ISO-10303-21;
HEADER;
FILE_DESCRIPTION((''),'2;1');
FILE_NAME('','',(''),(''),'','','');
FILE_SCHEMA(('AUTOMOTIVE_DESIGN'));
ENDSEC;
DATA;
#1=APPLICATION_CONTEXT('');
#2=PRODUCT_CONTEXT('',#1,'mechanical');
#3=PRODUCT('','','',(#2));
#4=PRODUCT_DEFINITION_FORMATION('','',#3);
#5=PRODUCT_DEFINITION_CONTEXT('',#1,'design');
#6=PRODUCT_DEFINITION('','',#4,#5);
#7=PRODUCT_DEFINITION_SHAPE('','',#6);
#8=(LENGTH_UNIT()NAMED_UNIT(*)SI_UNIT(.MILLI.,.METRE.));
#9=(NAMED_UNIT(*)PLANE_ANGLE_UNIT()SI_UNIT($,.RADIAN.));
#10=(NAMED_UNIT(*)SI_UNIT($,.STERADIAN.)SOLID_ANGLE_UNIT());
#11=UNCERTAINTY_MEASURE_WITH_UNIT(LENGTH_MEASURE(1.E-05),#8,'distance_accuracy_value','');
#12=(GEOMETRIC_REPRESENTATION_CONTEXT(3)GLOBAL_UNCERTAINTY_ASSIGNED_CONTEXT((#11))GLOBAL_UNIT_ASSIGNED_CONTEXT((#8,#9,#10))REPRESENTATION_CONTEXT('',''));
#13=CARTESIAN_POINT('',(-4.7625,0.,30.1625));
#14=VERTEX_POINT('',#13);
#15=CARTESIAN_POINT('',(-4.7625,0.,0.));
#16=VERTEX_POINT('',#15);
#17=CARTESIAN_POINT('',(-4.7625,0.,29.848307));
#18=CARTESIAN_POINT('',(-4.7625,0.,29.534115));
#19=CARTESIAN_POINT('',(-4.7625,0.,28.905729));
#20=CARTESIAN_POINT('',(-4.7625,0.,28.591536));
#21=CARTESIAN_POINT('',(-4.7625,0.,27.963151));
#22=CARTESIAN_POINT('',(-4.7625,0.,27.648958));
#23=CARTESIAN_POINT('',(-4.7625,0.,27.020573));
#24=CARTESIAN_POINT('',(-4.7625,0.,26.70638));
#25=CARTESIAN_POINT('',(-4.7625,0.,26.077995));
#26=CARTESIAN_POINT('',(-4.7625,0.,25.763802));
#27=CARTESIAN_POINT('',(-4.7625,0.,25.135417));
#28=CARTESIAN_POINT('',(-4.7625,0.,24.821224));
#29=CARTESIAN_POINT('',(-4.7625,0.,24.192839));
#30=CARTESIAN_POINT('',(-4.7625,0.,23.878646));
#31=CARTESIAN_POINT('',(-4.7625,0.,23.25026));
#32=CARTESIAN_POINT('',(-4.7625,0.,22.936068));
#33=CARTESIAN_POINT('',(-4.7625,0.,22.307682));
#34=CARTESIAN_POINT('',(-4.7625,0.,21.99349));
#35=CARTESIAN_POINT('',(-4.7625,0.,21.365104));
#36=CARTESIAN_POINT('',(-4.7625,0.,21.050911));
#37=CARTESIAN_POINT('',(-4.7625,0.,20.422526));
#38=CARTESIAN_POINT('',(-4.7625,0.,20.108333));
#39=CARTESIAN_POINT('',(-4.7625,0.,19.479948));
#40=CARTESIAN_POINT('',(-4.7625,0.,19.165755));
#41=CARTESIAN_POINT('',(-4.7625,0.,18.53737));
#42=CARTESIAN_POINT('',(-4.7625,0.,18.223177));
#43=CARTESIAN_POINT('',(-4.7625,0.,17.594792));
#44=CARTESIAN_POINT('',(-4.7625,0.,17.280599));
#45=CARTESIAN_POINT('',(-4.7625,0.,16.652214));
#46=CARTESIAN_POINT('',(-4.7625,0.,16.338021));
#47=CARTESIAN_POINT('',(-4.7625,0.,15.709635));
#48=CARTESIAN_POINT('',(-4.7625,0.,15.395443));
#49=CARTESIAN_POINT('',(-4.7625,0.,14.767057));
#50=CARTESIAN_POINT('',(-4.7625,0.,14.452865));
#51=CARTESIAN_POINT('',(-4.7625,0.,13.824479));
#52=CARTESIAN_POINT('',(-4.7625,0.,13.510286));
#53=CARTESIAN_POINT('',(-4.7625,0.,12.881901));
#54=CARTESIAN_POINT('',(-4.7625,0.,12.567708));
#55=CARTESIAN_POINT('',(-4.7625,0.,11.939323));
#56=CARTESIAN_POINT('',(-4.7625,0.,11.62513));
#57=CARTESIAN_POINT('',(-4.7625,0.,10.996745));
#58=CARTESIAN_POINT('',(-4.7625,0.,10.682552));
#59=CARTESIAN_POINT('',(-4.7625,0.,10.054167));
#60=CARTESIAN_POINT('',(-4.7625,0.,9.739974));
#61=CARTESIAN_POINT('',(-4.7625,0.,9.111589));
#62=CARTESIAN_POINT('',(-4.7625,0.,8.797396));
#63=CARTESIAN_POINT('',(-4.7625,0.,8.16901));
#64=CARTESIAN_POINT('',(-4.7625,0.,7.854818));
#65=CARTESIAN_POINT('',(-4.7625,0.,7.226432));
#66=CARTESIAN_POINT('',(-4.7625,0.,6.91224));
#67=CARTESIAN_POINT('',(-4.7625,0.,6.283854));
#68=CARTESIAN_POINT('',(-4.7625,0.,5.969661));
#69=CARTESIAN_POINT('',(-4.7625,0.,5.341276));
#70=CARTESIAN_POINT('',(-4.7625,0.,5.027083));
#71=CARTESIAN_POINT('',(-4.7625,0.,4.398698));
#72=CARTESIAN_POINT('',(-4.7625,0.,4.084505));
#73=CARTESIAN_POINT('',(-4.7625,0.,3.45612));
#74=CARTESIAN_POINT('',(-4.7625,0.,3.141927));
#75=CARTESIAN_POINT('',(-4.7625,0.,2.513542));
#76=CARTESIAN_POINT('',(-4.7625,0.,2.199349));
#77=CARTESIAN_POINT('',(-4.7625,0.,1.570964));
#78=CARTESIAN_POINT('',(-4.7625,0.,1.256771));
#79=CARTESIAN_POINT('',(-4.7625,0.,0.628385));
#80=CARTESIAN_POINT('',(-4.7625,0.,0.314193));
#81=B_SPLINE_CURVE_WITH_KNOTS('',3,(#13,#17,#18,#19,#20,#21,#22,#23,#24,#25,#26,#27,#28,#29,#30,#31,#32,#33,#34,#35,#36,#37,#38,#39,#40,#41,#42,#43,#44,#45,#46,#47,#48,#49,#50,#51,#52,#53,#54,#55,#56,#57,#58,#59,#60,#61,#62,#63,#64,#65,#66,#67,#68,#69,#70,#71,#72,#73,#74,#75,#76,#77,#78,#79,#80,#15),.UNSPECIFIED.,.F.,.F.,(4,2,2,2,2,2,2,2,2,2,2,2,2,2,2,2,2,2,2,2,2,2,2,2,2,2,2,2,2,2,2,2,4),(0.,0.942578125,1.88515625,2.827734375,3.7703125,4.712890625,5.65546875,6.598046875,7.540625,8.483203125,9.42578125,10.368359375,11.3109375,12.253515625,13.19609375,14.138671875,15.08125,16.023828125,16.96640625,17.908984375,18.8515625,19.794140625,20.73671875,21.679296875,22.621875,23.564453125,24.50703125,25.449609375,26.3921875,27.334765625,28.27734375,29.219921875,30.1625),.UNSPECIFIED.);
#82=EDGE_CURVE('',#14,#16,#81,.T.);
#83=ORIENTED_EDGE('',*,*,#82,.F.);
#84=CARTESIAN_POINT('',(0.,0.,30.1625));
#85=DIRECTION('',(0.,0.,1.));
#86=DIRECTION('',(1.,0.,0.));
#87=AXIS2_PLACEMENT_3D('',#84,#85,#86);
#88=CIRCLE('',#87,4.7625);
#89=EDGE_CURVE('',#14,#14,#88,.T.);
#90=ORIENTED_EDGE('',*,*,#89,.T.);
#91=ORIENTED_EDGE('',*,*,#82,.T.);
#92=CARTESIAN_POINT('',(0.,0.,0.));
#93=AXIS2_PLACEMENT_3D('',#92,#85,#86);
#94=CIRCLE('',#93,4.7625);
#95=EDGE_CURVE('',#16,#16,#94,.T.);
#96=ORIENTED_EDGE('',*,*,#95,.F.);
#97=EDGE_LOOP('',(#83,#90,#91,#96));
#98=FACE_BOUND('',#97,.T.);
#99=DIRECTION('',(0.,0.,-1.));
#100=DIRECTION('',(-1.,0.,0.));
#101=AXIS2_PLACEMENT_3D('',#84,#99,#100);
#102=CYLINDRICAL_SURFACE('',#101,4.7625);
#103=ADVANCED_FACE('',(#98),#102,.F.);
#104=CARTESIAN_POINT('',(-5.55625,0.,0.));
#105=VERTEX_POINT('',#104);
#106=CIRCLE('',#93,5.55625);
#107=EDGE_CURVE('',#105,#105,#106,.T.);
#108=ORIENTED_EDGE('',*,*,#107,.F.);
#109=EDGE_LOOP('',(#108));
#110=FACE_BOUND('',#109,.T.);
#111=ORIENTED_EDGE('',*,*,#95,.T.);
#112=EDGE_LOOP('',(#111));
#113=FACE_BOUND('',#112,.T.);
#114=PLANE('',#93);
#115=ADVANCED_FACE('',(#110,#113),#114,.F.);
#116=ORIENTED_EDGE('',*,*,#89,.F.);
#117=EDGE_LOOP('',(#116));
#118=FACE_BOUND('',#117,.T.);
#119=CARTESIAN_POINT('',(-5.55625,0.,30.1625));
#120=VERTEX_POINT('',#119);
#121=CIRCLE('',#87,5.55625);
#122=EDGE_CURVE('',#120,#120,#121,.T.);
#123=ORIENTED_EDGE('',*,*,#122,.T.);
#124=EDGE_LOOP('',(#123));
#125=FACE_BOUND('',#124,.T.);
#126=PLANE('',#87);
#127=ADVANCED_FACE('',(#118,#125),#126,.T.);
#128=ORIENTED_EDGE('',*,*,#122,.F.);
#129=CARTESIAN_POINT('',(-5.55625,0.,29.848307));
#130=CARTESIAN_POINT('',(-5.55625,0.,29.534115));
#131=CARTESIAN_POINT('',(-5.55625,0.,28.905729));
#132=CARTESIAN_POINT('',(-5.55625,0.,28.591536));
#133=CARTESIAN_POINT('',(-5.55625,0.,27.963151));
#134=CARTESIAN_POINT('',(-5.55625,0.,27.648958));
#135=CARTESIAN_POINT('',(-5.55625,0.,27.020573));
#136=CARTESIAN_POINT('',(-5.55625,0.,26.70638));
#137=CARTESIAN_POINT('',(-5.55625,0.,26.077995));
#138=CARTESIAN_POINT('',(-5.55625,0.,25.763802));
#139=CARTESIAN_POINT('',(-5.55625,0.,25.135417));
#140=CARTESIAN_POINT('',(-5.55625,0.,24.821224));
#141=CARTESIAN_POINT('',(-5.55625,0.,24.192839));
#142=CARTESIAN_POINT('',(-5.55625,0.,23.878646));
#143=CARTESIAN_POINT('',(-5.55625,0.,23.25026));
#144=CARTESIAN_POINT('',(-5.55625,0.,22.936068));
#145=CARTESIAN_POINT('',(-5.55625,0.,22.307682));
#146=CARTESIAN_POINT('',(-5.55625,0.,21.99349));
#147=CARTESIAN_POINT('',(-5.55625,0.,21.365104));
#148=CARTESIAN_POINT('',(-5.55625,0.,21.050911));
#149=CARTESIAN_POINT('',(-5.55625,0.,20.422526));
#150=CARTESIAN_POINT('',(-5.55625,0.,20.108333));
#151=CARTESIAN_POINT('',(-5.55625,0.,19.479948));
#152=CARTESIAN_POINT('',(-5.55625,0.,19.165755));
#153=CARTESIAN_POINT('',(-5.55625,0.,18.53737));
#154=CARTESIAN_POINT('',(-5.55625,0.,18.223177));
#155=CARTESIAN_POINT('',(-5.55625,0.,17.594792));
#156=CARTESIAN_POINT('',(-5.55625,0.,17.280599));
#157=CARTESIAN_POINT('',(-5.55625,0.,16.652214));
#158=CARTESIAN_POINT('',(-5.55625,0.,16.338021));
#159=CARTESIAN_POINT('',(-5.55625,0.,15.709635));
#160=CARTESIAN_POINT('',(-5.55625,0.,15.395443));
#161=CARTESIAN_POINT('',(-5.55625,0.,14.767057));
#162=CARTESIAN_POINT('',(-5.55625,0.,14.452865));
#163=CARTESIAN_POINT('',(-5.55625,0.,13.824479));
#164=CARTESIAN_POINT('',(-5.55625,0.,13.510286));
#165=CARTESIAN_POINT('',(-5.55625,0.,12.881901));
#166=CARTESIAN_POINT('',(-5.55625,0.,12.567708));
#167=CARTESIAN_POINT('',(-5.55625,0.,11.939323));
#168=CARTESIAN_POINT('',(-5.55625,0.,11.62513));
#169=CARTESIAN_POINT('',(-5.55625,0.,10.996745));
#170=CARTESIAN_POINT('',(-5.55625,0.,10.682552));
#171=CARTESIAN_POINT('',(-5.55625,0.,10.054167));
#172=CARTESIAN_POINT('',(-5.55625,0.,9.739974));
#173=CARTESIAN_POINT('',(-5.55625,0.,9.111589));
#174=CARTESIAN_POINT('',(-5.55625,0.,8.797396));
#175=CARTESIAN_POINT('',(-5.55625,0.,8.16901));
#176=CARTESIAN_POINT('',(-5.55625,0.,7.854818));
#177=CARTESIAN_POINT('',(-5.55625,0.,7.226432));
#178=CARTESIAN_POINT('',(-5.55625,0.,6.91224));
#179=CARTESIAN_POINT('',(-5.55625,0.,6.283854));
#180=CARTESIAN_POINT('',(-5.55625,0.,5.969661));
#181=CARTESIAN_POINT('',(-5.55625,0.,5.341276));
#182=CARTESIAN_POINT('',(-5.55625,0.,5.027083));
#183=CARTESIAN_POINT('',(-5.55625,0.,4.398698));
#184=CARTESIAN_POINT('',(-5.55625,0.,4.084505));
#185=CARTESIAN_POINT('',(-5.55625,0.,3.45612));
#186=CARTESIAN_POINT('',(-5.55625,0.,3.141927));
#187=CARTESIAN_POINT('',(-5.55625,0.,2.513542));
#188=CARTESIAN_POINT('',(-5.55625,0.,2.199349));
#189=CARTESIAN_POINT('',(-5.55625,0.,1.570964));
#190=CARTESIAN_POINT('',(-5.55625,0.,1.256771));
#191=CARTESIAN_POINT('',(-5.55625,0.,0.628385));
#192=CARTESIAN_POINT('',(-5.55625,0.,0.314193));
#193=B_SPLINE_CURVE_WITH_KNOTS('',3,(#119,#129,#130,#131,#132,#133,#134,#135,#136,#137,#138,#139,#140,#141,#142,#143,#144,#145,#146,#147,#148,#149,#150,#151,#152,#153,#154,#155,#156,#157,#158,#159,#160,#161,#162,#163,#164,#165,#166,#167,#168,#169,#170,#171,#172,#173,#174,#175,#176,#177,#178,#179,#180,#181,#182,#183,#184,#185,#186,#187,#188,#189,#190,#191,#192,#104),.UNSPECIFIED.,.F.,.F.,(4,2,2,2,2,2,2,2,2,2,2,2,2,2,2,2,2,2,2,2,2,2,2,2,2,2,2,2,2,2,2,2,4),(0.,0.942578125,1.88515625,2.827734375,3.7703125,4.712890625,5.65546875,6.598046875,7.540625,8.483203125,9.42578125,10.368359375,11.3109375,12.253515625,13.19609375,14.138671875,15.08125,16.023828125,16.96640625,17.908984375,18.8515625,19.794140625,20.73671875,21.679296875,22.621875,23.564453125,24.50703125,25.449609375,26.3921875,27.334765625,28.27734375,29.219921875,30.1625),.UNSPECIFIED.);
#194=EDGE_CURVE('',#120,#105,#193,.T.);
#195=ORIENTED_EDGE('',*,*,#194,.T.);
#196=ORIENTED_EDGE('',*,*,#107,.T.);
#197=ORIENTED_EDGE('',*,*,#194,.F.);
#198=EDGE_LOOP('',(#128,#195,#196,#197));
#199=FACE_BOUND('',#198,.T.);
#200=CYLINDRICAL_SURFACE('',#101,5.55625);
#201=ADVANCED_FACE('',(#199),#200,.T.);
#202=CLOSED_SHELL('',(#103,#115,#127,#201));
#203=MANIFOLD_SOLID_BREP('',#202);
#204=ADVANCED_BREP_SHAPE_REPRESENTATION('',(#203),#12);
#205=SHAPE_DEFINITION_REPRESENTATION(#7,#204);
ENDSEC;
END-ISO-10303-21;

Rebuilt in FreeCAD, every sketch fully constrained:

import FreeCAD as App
import Part
import Sketcher
Q = App.Units.Quantity

doc = App.newDocument("Part")
body = doc.addObject("PartDesign::Body", "Body")

sketch1 = body.newObject("Sketcher::SketchObject", "Sketch")
sketch1.AttachmentSupport = (doc.getObject("XY_Plane"), [""])
sketch1.MapMode = "FlatFace"
sketch1.addGeometry([
    Part.Circle(App.Vector(0, 0, 0), App.Vector(0, 0, 1), 5.6),
    Part.Circle(App.Vector(0, 0, 0), App.Vector(0, 0, 1), 4.8),
], False)
sketch1.addConstraint([
    Sketcher.Constraint("Coincident", 0, 3, -1, 1),
    Sketcher.Constraint("Coincident", 1, 3, -1, 1),
    Sketcher.Constraint("Diameter", 0, Q("0.4375 in")),
    Sketcher.Constraint("Diameter", 1, Q("0.375 in")),
])
pad1 = body.newObject("PartDesign::Pad", "Pad")
pad1.Profile = sketch1
pad1.Length = Q("1.1875 in")

doc.recompute()
